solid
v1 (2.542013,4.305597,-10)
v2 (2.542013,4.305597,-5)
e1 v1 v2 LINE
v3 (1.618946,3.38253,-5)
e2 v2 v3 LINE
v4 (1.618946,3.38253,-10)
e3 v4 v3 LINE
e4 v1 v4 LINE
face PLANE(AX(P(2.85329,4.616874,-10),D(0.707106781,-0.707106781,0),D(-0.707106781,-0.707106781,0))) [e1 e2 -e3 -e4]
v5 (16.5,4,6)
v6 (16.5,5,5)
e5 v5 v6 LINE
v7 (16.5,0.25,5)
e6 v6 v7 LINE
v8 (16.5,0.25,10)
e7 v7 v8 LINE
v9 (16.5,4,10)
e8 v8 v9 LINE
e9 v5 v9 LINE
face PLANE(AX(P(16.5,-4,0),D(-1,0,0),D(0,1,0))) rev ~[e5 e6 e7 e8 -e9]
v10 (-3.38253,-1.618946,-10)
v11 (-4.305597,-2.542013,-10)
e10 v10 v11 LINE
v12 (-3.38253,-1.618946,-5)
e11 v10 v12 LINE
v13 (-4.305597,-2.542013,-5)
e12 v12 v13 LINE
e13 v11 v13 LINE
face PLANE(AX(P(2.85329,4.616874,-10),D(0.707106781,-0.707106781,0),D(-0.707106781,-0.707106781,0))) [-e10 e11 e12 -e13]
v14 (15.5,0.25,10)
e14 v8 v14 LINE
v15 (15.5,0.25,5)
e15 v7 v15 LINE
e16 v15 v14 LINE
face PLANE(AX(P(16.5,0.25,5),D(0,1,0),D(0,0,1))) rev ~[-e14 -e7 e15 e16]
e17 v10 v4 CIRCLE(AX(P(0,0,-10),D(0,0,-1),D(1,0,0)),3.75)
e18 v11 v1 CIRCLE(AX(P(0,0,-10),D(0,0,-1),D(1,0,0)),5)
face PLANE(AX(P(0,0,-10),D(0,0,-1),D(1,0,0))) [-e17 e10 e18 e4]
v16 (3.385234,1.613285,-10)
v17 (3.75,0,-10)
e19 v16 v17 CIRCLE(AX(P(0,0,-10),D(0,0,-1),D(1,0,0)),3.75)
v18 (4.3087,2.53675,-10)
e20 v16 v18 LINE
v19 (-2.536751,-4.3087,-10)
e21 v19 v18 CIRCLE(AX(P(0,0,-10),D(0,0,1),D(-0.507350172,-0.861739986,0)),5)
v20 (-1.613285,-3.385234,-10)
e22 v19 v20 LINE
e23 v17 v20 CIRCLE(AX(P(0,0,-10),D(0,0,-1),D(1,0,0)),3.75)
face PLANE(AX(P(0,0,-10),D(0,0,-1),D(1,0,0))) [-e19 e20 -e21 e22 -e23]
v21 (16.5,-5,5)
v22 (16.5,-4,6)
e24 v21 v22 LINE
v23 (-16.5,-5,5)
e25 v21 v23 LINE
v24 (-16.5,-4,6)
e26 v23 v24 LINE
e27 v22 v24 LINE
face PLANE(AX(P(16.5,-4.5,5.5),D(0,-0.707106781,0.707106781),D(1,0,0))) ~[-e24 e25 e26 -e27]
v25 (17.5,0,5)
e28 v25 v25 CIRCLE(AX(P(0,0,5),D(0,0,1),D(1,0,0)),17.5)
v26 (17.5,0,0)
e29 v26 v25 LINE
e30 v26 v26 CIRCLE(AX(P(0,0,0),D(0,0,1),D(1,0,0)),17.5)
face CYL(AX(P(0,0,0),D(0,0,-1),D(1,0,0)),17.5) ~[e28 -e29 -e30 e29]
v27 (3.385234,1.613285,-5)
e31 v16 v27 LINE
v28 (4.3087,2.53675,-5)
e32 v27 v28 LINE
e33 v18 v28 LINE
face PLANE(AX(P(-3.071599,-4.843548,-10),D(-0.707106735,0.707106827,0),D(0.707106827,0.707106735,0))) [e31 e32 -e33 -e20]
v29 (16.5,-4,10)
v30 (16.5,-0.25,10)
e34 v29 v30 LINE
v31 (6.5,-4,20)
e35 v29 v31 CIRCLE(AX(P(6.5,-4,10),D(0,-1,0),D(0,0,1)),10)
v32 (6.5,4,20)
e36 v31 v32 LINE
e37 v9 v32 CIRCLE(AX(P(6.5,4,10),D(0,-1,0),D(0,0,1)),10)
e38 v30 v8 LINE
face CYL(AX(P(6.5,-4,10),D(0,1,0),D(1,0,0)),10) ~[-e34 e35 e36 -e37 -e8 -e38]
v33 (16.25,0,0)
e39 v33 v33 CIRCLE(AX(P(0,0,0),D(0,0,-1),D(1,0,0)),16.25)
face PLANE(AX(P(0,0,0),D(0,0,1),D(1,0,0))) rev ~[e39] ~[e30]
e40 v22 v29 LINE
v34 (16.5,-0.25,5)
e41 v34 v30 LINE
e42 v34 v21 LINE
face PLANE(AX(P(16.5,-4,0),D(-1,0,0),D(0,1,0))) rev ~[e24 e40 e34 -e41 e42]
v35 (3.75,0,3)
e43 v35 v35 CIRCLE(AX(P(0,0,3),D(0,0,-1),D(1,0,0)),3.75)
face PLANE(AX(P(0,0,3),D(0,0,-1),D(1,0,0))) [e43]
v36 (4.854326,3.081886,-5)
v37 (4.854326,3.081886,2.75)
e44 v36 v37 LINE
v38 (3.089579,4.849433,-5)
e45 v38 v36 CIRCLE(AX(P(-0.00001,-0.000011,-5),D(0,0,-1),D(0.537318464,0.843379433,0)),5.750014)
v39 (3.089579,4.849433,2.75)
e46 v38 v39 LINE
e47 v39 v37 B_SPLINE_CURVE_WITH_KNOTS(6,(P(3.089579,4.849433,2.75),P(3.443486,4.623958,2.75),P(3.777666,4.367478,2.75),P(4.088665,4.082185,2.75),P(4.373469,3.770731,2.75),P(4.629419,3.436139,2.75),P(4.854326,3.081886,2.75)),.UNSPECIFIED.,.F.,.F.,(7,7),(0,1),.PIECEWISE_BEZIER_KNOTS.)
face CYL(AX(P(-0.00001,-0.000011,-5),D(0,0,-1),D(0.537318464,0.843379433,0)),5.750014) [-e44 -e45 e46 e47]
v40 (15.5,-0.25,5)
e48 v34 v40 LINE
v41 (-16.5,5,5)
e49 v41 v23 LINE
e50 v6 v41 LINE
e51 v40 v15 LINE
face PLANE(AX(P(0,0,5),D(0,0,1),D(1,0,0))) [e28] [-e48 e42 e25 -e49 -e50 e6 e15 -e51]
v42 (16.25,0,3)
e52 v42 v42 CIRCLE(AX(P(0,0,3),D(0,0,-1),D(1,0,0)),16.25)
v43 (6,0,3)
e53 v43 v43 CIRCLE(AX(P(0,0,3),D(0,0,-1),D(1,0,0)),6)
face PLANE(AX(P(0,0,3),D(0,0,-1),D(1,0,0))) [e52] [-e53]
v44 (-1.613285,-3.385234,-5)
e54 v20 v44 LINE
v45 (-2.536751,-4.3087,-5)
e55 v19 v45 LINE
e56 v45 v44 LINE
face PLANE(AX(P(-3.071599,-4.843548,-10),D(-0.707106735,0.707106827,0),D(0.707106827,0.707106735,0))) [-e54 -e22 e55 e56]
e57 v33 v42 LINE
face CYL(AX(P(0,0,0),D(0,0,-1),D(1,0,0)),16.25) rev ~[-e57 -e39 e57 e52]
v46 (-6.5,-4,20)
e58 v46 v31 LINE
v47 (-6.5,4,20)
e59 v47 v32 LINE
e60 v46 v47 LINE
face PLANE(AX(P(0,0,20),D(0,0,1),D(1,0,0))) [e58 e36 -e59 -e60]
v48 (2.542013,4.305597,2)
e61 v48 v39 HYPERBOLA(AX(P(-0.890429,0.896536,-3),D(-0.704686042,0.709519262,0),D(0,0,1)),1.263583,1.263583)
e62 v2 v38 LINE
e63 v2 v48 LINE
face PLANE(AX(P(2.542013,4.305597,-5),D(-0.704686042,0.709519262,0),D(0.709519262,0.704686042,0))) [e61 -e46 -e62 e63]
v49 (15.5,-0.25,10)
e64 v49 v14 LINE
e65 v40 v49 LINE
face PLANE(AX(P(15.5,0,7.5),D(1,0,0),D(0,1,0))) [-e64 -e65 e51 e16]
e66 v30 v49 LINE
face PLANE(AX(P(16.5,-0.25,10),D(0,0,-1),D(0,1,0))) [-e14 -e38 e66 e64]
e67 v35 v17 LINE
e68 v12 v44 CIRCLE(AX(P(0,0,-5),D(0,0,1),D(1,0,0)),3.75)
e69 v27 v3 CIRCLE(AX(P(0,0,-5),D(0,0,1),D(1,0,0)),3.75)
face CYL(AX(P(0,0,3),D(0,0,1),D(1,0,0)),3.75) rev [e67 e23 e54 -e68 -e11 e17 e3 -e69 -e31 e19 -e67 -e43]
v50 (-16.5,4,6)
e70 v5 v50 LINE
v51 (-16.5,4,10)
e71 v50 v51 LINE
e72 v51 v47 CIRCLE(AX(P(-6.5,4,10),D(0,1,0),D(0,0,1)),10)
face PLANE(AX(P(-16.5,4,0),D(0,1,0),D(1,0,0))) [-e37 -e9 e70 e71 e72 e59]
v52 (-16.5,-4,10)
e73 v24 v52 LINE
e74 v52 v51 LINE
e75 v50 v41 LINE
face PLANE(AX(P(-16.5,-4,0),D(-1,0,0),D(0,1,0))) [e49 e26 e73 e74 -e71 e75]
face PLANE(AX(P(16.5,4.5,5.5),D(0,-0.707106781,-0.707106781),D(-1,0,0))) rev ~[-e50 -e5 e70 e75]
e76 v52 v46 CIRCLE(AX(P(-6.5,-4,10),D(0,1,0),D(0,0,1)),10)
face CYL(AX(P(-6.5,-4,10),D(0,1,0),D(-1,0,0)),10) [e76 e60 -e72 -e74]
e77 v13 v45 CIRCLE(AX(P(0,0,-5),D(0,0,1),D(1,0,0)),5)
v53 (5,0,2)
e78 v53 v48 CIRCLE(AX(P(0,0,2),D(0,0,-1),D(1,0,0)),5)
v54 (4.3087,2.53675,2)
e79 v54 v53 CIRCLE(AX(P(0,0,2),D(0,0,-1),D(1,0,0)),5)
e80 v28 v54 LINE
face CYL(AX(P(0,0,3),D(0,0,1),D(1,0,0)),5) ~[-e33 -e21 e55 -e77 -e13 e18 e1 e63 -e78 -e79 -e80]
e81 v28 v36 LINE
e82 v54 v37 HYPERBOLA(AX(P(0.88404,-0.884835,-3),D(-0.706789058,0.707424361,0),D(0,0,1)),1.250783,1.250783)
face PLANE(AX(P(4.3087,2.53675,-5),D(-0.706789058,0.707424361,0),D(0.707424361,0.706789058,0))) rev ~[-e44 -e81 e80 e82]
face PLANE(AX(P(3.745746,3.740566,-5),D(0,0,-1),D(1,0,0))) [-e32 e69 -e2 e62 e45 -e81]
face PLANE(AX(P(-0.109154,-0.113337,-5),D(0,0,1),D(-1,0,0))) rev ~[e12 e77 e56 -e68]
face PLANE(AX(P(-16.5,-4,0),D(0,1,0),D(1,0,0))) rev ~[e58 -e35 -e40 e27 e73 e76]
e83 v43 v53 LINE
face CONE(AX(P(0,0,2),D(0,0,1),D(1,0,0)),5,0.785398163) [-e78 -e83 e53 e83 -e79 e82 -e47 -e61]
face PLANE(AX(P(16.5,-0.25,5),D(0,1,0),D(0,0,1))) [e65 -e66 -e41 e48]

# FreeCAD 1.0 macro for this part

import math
import FreeCAD as App
import Part
import Sketcher
Q = App.Units.Quantity


def edges_at(feature, points):
    """Names of the edges that pass closest to the given points."""
    edges = feature.Shape.Edges
    near = lambda p: min(range(len(edges)), key=lambda i: edges[i].distToShape(Part.Vertex(*p))[0])
    return sorted({f"Edge{near(p) + 1}" for p in points})


def add_polygon(sketch, points):
    """Adds a closed chain of lines whose ends are joined by coincident constraints."""
    first, n = sketch.GeometryCount, len(points)
    for a, b in zip(points, points[1:] + points[:1]):
        sketch.addGeometry(Part.LineSegment(App.Vector(*a, 0), App.Vector(*b, 0)), False)
    for i in range(n):
        sketch.addConstraint(Sketcher.Constraint("Coincident", first + i, 2, first + (i + 1) % n, 1))

doc = App.newDocument("Part")
params = doc.addObject("Spreadsheet::Sheet", "Params")
for row, (alias, value) in enumerate([
    ("sketch1_diameter", "35 mm"),
    ("pad1_length", "5 mm"),
    ("sketch2_width", "33 mm"),
    ("sketch2_height", "8 mm"),
    ("pad2_length", "20 mm"),
    ("fillet_radius", "10 mm"),
    ("chamfer_size", "1 mm"),
    ("sketch3_diameter", "32.5 mm"),
    ("pocket1_length", "3 mm"),
    ("sketch4_diameter", "10 mm"),
    ("sketch4_diameter2", "7.5 mm"),
    ("pad3_length", "13 mm"),
    ("chamfer2_size", "1 mm"),
    ("sketch5_length", "2.499999 mm"),
    ("pocket2_length", "5 mm"),
    ("pad4_length", "8 mm"),
    ("sketch7_height", "5 mm"),
    ("sketch7_width", "0.5 mm"),
    ("pocket3_length", "1 mm"),
], start=1):
    params.set(f"A{row}", alias)
    params.set(f"B{row}", "=" + value)
    params.setAlias(f"B{row}", alias)

body = doc.addObject("PartDesign::Body", "Body")

sketch1 = body.newObject("Sketcher::SketchObject", "Sketch")
sketch1.AttachmentSupport = (doc.getObject("XY_Plane"), [""])
sketch1.MapMode = "FlatFace"
sketch1.addGeometry(Part.Circle(App.Vector(0, 0, 0), App.Vector(0, 0, 1), 17.5), False)
sketch1.addConstraint([
    Sketcher.Constraint("Coincident", 0, 3, -1, 1),
    Sketcher.Constraint("Diameter", 0, 35.0),
])
sketch1.setExpression("Constraints[1]", "Params.sketch1_diameter")
pad1 = body.newObject("PartDesign::Pad", "Pad")
pad1.Profile = sketch1
pad1.setExpression("Length", "Params.pad1_length")

sketch2 = body.newObject("Sketcher::SketchObject", "Sketch001")
sketch2.AttachmentSupport = (doc.getObject("XY_Plane"), [""])
sketch2.MapMode = "FlatFace"
add_polygon(sketch2, [(-16.5, 4), (-16.5, -4), (16.5, -4), (16.5, 4)])
sketch2.addConstraint([
    Sketcher.Constraint("Vertical", 0),
    Sketcher.Constraint("Horizontal", 1),
    Sketcher.Constraint("Vertical", 2),
    Sketcher.Constraint("Horizontal", 3),
    Sketcher.Constraint("Symmetric", 0, 2, 2, 2, -1, 1),
    Sketcher.Constraint("DistanceX", 1, 1, 1, 2, 33.0),
    Sketcher.Constraint("DistanceY", 0, 2, 0, 1, 8.0),
])
sketch2.setExpression("Constraints[9]", "Params.sketch2_width")
sketch2.setExpression("Constraints[10]", "Params.sketch2_height")
pad2 = body.newObject("PartDesign::Pad", "Pad001")
pad2.Profile = sketch2
pad2.setExpression("Length", "Params.pad2_length")
doc.recompute()

fillet = body.newObject("PartDesign::Fillet", "Fillet")
fillet.Base = (pad2, edges_at(pad2, [(-16.5, 0, 20), (16.5, 0, 20)]))
fillet.setExpression("Radius", "Params.fillet_radius")
doc.recompute()

chamfer = body.newObject("PartDesign::Chamfer", "Chamfer")
chamfer.Base = (fillet, edges_at(fillet, [(0, -4, 5), (0, 4, 5)]))
chamfer.setExpression("Size", "Params.chamfer_size")

sketch3 = body.newObject("Sketcher::SketchObject", "Sketch002")
sketch3.AttachmentSupport = (doc.getObject("XY_Plane"), [""])
sketch3.MapMode = "FlatFace"
sketch3.addGeometry(Part.Circle(App.Vector(0, 0, 0), App.Vector(0, 0, 1), 16.25), False)
sketch3.addConstraint([
    Sketcher.Constraint("Coincident", 0, 3, -1, 1),
    Sketcher.Constraint("Diameter", 0, 32.5),
])
sketch3.setExpression("Constraints[1]", "Params.sketch3_diameter")
pocket1 = body.newObject("PartDesign::Pocket", "Pocket")
pocket1.Profile = sketch3
pocket1.setExpression("Length", "Params.pocket1_length")
pocket1.Reversed = True

sketch4 = body.newObject("Sketcher::SketchObject", "Sketch003")
sketch4.AttachmentSupport = (doc.getObject("XY_Plane"), [""])
sketch4.MapMode = "FlatFace"
sketch4.AttachmentOffset = App.Placement(App.Vector(0, 0, 3), App.Rotation())
sketch4.addGeometry([
    Part.Circle(App.Vector(0, 0, 0), App.Vector(0, 0, 1), 5),
    Part.Circle(App.Vector(0, 0, 0), App.Vector(0, 0, 1), 3.75),
], False)
sketch4.addConstraint([
    Sketcher.Constraint("Coincident", 0, 3, -1, 1),
    Sketcher.Constraint("Coincident", 1, 3, -1, 1),
    Sketcher.Constraint("Diameter", 0, 10.0),
    Sketcher.Constraint("Diameter", 1, 7.5),
])
sketch4.setExpression("Constraints[2]", "Params.sketch4_diameter")
sketch4.setExpression("Constraints[3]", "Params.sketch4_diameter2")
pad3 = body.newObject("PartDesign::Pad", "Pad002")
pad3.Profile = sketch4
pad3.setExpression("Length", "Params.pad3_length")
pad3.Reversed = True
doc.recompute()

chamfer2 = body.newObject("PartDesign::Chamfer", "Chamfer001")
chamfer2.Base = (pad3, edges_at(pad3, [(-5, 0, 3)]))
chamfer2.setExpression("Size", "Params.chamfer2_size")

sketch5 = body.newObject("Sketcher::SketchObject", "Sketch004")
sketch5.AttachmentSupport = (doc.getObject("XY_Plane"), [""])
sketch5.MapMode = "FlatFace"
sketch5.AttachmentOffset = App.Placement(App.Vector(0, 0, -10), App.Rotation())
add_polygon(sketch5, [(4.621057, 2.849107), (-3.071599, -4.843548), (-4.839366, -3.075782), (2.85329, 4.616874)])
sketch5.addConstraint([
    Sketcher.Constraint("Perpendicular", 0, 1),
    Sketcher.Constraint("Perpendicular", 1, 2),
    Sketcher.Constraint("Perpendicular", 2, 3),
    Sketcher.Constraint("Angle", 0, Q("-135.000004 deg")),
    Sketcher.Constraint("Distance", 1, 2.499999),
    Sketcher.Constraint("DistanceX", 0, 2, -1, 1, 3.071599),
    Sketcher.Constraint("Distance", 2, 10.879058),
    Sketcher.Constraint("DistanceY", 0, 2, -1, 1, 4.843548),
])
sketch5.setExpression("Constraints[8]", "Params.sketch5_length")
pocket2 = body.newObject("PartDesign::Pocket", "Pocket001")
pocket2.Profile = sketch5
pocket2.setExpression("Length", "Params.pocket2_length")
pocket2.Reversed = True

sketch6 = body.newObject("Sketcher::SketchObject", "Sketch005")
sketch6.AttachmentSupport = (doc.getObject("XY_Plane"), [""])
sketch6.MapMode = "FlatFace"
sketch6.AttachmentOffset = App.Placement(App.Vector(0, 0, -5), App.Rotation())
sketch6.addGeometry([
    Part.ArcOfCircle(Part.Circle(App.Vector(-0.00001, -0.000011, 0), App.Vector(0, 0, 1), 5.750014), math.radians(32.410446), math.radians(57.498719)),
    Part.LineSegment(App.Vector(4.854326, 3.081886, 0), App.Vector(4.3087, 2.53675, 0)),
    Part.ArcOfCircle(Part.Circle(App.Vector(0.000001, 0.000001, 0), App.Vector(0, 0, 1), 4.999998), math.radians(30.487474), math.radians(59.442518)),
    Part.LineSegment(App.Vector(2.542013, 4.305597, 0), App.Vector(3.089579, 4.849433, 0)),
], False)
sketch6.addConstraint([
    Sketcher.Constraint("Coincident", 0, 1, 1, 1),
    Sketcher.Constraint("Coincident", 1, 2, 2, 1),
    Sketcher.Constraint("Coincident", 2, 2, 3, 1),
    Sketcher.Constraint("Coincident", 3, 2, 0, 2),
    Sketcher.Constraint("Coincident", 2, 3, -1, 1),
    Sketcher.Constraint("Radius", 0, 5.750014),
    Sketcher.Constraint("Radius", 2, 4.999998),
    Sketcher.Constraint("DistanceX", -1, 1, 1, 2, 4.3087),
    Sketcher.Constraint("DistanceX", -1, 1, 3, 2, 3.089579),
    Sketcher.Constraint("DistanceX", 0, 3, 1, 2, 4.30871),
    Sketcher.Constraint("DistanceY", 0, 3, 1, 2, 2.536761),
    Sketcher.Constraint("DistanceY", 0, 1, 2, 2, 1.223711),
    Sketcher.Constraint("DistanceX", 2, 3, 2, 2, 2.542012),
])
pad4 = body.newObject("PartDesign::Pad", "Pad003")
pad4.Profile = sketch6
pad4.setExpression("Length", "Params.pad4_length")

sketch7 = body.newObject("Sketcher::SketchObject", "Sketch006")
sketch7.AttachmentSupport = (doc.getObject("YZ_Plane"), [""])
sketch7.MapMode = "FlatFace"
sketch7.AttachmentOffset = App.Placement(App.Vector(0, 0, 16.5), App.Rotation())
add_polygon(sketch7, [(-0.25, 10), (-0.25, 5), (0.25, 5), (0.25, 10)])
sketch7.addConstraint([
    Sketcher.Constraint("Vertical", 0),
    Sketcher.Constraint("Horizontal", 1),
    Sketcher.Constraint("Vertical", 2),
    Sketcher.Constraint("Horizontal", 3),
    Sketcher.Constraint("DistanceY", 0, 2, 0, 1, 5.0),
    Sketcher.Constraint("DistanceX", 1, 1, 1, 2, 0.5),
    Sketcher.Constraint("DistanceY", -1, 1, 0, 2, 5.0),
    Sketcher.Constraint("DistanceX", 0, 2, -1, 1, 0.25),
])
sketch7.setExpression("Constraints[8]", "Params.sketch7_height")
sketch7.setExpression("Constraints[9]", "Params.sketch7_width")
pocket3 = body.newObject("PartDesign::Pocket", "Pocket002")
pocket3.Profile = sketch7
pocket3.setExpression("Length", "Params.pocket3_length")

doc.recompute()
